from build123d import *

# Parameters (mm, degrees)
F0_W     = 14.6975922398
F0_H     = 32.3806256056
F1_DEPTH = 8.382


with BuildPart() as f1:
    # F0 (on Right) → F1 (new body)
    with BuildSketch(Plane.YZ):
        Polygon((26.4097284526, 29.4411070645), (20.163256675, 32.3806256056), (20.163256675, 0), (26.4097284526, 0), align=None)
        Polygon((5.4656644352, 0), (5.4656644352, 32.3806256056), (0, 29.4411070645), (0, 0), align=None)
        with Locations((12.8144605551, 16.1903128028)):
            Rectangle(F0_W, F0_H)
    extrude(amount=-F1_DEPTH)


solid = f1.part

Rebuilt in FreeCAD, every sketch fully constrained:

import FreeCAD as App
import Part
import Sketcher
from FreeCAD import Vector
Q = App.Units.Quantity


def add_polygon(sketch, points):
    """Adds a closed chain of lines whose ends are joined by coincident constraints."""
    first, n = sketch.GeometryCount, len(points)
    for a, b in zip(points, points[1:] + points[:1]):
        sketch.addGeometry(Part.LineSegment(App.Vector(*a, 0), App.Vector(*b, 0)), False)
    for i in range(n):
        sketch.addConstraint(Sketcher.Constraint("Coincident", first + i, 2, first + (i + 1) % n, 1))

doc = App.newDocument("Part")
body = doc.addObject("PartDesign::Body", "Body")

# Sketch on YZ plane
sketch1 = doc.addObject("Sketcher::SketchObject", "Sketch")
body.addObject(sketch1)
sketch1.AttachmentSupport = (doc.YZ_Plane, [""])
sketch1.MapMode = "FlatFace"
add_polygon(sketch1, [(26, 29), (20, 32), (5, 32), (0, 29), (0, 0), (26, 0)])  # lines 0-5
sketch1.addConstraint([
    Sketcher.Constraint("Horizontal", 1),
    Sketcher.Constraint("Vertical", 3),
    Sketcher.Constraint("Horizontal", 4),
    Sketcher.Constraint("Vertical", 5),
    Sketcher.Constraint("Coincident", 3, 2, -1, 1),
    Sketcher.Constraint("Horizontal", 2, 2, 5, 2),
    Sketcher.Constraint("DistanceX", 4, 1, 4, 2, 26.409728),
    Sketcher.Constraint("DistanceX", 1, 2, 1, 1, 14.697592),
    Sketcher.Constraint("DistanceY", 3, 2, 3, 1, 29.441107),
    Sketcher.Constraint("DistanceY", 2, 2, 1, 2, 2.939519),
    Sketcher.Constraint("DistanceX", 0, 2, 4, 2, 6.246472),
])
pad1 = doc.addObject("PartDesign::Pad", "Pad")
body.addObject(pad1)
pad1.Profile = sketch1
pad1.Length = Q("0.33 in")
pad1.Reversed = True

doc.recompute()
